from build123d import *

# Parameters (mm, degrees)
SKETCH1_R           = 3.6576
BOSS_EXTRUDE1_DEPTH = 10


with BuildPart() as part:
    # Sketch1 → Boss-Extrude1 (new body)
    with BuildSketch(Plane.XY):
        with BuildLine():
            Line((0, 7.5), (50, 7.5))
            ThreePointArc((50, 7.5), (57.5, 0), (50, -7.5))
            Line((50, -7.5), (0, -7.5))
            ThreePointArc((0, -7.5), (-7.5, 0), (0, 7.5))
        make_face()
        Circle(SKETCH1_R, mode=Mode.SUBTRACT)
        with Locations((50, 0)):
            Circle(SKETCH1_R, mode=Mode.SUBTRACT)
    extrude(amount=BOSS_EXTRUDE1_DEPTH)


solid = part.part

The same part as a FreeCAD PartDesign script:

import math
import FreeCAD as App
import Part
import Sketcher
from FreeCAD import Vector
Q = App.Units.Quantity

doc = App.newDocument("Part")
body = doc.addObject("PartDesign::Body", "Body")

sketch1 = doc.addObject("Sketcher::SketchObject", "Sketch")
body.addObject(sketch1)
sketch1.AttachmentSupport = (doc.XY_Plane, [""])
sketch1.MapMode = "FlatFace"
sketch1.addGeometry([
    Part.LineSegment(Vector(50, 7.5, 0), Vector(0, 7.5, 0)),
    Part.ArcOfCircle(Part.Circle(Vector(0, 0, 0), Vector(0, 0, 1), 7.5), math.radians(90), math.radians(270)),
    Part.LineSegment(Vector(0, -7.5, 0), Vector(50, -7.5, 0)),
    Part.ArcOfCircle(Part.Circle(Vector(50, 0, 0), Vector(0, 0, 1), 7.5), math.radians(-90), math.radians(90)),
    Part.Circle(Vector(50, 0, 0), Vector(0, 0, 1), 3.7),
    Part.Circle(Vector(0, 0, 0), Vector(0, 0, 1), 3.7),
], False)
sketch1.addConstraint([
    Sketcher.Constraint("Tangent", 0, 2, 1, 1),
    Sketcher.Constraint("Tangent", 1, 2, 2, 1),
    Sketcher.Constraint("Tangent", 2, 2, 3, 1),
    Sketcher.Constraint("Tangent", 3, 2, 0, 1),
    Sketcher.Constraint("Horizontal", 0),
    Sketcher.Constraint("Horizontal", 2),
    Sketcher.Constraint("Coincident", 1, 3, -1, 1),
    Sketcher.Constraint("Coincident", 5, 3, -1, 1),
    Sketcher.Constraint("Coincident", 4, 3, 3, 3),
    Sketcher.Constraint("Equal", 4, 5),
    Sketcher.Constraint("Radius", 1, Q("7.5 mm")),
    Sketcher.Constraint("DistanceX", 0, 2, 0, 1, Q("50 mm")),
    Sketcher.Constraint("Diameter", 4, Q("7.3152 mm")),
])
pad1 = doc.addObject("PartDesign::Pad", "Pad")
body.addObject(pad1)
pad1.Profile = sketch1
pad1.Length = 10

doc.recompute()
